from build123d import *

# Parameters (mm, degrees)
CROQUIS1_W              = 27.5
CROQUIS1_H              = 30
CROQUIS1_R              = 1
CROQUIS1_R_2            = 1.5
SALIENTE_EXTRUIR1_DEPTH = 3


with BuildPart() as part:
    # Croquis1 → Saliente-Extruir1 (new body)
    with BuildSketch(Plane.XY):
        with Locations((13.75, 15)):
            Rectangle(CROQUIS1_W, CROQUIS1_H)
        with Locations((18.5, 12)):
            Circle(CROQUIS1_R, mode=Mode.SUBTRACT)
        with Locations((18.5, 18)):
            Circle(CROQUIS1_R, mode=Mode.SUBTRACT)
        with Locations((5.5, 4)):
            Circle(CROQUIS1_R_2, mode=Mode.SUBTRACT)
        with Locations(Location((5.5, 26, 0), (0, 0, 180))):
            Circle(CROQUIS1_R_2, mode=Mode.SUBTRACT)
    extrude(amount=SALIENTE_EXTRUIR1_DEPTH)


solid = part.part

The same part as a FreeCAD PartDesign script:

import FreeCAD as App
import Part
import Sketcher


def add_polygon(sketch, points):
    """Adds a closed chain of lines whose ends are joined by coincident constraints."""
    first, n = sketch.GeometryCount, len(points)
    for a, b in zip(points, points[1:] + points[:1]):
        sketch.addGeometry(Part.LineSegment(App.Vector(*a, 0), App.Vector(*b, 0)), False)
    for i in range(n):
        sketch.addConstraint(Sketcher.Constraint("Coincident", first + i, 2, first + (i + 1) % n, 1))

doc = App.newDocument("Part")
body = doc.addObject("PartDesign::Body", "Body")

# Sketch on XY plane
sketch1 = body.newObject("Sketcher::SketchObject", "Sketch")
sketch1.AttachmentSupport = (doc.getObject("XY_Plane"), [""])
sketch1.MapMode = "FlatFace"
add_polygon(sketch1, [(0, 30), (0, 0), (27.5, 0), (27.5, 30)])  # lines 0-3
sketch1.addGeometry(Part.Circle(App.Vector(5.5, 4, 0), App.Vector(0, 0, 1), 1.5), False)  # 4
sketch1.addGeometry(Part.Circle(App.Vector(18.5, 12, 0), App.Vector(0, 0, 1), 1), False)  # 5
sketch1.addGeometry(Part.Circle(App.Vector(5.5, 26, 0), App.Vector(0, 0, 1), 1.5), False)  # 6
sketch1.addGeometry(Part.Circle(App.Vector(18.5, 18, 0), App.Vector(0, 0, 1), 1), False)  # 7
sketch1.addConstraint([
    Sketcher.Constraint("Vertical", 0),
    Sketcher.Constraint("Horizontal", 1),
    Sketcher.Constraint("Vertical", 2),
    Sketcher.Constraint("Horizontal", 3),
    Sketcher.Constraint("Coincident", 0, 2, -1, 1),
    Sketcher.Constraint("Equal", 4, 6),
    Sketcher.Constraint("Equal", 5, 7),
    Sketcher.Constraint("Vertical", 4, 3, 6, 3),
    Sketcher.Constraint("Vertical", 5, 3, 7, 3),
    Sketcher.Constraint("Diameter", 4, 3.0),
    Sketcher.Constraint("Diameter", 5, 2.0),
    Sketcher.Constraint("DistanceY", 0, 2, 0, 1, 30.0),
    Sketcher.Constraint("DistanceX", 1, 1, 1, 2, 27.5),
    Sketcher.Constraint("DistanceY", -1, 1, 4, 3, 4.0),
    Sketcher.Constraint("DistanceY", -1, 1, 5, 3, 12.0),
    Sketcher.Constraint("DistanceY", -1, 1, 6, 3, 26.0),
    Sketcher.Constraint("DistanceY", -1, 1, 7, 3, 18.0),
    Sketcher.Constraint("DistanceX", 4, 3, 5, 3, 13.0),
    Sketcher.Constraint("DistanceX", 5, 3, 1, 2, 9.0),
])
pad1 = body.newObject("PartDesign::Pad", "Pad")
pad1.Profile = sketch1
pad1.Length = 3

doc.recompute()
